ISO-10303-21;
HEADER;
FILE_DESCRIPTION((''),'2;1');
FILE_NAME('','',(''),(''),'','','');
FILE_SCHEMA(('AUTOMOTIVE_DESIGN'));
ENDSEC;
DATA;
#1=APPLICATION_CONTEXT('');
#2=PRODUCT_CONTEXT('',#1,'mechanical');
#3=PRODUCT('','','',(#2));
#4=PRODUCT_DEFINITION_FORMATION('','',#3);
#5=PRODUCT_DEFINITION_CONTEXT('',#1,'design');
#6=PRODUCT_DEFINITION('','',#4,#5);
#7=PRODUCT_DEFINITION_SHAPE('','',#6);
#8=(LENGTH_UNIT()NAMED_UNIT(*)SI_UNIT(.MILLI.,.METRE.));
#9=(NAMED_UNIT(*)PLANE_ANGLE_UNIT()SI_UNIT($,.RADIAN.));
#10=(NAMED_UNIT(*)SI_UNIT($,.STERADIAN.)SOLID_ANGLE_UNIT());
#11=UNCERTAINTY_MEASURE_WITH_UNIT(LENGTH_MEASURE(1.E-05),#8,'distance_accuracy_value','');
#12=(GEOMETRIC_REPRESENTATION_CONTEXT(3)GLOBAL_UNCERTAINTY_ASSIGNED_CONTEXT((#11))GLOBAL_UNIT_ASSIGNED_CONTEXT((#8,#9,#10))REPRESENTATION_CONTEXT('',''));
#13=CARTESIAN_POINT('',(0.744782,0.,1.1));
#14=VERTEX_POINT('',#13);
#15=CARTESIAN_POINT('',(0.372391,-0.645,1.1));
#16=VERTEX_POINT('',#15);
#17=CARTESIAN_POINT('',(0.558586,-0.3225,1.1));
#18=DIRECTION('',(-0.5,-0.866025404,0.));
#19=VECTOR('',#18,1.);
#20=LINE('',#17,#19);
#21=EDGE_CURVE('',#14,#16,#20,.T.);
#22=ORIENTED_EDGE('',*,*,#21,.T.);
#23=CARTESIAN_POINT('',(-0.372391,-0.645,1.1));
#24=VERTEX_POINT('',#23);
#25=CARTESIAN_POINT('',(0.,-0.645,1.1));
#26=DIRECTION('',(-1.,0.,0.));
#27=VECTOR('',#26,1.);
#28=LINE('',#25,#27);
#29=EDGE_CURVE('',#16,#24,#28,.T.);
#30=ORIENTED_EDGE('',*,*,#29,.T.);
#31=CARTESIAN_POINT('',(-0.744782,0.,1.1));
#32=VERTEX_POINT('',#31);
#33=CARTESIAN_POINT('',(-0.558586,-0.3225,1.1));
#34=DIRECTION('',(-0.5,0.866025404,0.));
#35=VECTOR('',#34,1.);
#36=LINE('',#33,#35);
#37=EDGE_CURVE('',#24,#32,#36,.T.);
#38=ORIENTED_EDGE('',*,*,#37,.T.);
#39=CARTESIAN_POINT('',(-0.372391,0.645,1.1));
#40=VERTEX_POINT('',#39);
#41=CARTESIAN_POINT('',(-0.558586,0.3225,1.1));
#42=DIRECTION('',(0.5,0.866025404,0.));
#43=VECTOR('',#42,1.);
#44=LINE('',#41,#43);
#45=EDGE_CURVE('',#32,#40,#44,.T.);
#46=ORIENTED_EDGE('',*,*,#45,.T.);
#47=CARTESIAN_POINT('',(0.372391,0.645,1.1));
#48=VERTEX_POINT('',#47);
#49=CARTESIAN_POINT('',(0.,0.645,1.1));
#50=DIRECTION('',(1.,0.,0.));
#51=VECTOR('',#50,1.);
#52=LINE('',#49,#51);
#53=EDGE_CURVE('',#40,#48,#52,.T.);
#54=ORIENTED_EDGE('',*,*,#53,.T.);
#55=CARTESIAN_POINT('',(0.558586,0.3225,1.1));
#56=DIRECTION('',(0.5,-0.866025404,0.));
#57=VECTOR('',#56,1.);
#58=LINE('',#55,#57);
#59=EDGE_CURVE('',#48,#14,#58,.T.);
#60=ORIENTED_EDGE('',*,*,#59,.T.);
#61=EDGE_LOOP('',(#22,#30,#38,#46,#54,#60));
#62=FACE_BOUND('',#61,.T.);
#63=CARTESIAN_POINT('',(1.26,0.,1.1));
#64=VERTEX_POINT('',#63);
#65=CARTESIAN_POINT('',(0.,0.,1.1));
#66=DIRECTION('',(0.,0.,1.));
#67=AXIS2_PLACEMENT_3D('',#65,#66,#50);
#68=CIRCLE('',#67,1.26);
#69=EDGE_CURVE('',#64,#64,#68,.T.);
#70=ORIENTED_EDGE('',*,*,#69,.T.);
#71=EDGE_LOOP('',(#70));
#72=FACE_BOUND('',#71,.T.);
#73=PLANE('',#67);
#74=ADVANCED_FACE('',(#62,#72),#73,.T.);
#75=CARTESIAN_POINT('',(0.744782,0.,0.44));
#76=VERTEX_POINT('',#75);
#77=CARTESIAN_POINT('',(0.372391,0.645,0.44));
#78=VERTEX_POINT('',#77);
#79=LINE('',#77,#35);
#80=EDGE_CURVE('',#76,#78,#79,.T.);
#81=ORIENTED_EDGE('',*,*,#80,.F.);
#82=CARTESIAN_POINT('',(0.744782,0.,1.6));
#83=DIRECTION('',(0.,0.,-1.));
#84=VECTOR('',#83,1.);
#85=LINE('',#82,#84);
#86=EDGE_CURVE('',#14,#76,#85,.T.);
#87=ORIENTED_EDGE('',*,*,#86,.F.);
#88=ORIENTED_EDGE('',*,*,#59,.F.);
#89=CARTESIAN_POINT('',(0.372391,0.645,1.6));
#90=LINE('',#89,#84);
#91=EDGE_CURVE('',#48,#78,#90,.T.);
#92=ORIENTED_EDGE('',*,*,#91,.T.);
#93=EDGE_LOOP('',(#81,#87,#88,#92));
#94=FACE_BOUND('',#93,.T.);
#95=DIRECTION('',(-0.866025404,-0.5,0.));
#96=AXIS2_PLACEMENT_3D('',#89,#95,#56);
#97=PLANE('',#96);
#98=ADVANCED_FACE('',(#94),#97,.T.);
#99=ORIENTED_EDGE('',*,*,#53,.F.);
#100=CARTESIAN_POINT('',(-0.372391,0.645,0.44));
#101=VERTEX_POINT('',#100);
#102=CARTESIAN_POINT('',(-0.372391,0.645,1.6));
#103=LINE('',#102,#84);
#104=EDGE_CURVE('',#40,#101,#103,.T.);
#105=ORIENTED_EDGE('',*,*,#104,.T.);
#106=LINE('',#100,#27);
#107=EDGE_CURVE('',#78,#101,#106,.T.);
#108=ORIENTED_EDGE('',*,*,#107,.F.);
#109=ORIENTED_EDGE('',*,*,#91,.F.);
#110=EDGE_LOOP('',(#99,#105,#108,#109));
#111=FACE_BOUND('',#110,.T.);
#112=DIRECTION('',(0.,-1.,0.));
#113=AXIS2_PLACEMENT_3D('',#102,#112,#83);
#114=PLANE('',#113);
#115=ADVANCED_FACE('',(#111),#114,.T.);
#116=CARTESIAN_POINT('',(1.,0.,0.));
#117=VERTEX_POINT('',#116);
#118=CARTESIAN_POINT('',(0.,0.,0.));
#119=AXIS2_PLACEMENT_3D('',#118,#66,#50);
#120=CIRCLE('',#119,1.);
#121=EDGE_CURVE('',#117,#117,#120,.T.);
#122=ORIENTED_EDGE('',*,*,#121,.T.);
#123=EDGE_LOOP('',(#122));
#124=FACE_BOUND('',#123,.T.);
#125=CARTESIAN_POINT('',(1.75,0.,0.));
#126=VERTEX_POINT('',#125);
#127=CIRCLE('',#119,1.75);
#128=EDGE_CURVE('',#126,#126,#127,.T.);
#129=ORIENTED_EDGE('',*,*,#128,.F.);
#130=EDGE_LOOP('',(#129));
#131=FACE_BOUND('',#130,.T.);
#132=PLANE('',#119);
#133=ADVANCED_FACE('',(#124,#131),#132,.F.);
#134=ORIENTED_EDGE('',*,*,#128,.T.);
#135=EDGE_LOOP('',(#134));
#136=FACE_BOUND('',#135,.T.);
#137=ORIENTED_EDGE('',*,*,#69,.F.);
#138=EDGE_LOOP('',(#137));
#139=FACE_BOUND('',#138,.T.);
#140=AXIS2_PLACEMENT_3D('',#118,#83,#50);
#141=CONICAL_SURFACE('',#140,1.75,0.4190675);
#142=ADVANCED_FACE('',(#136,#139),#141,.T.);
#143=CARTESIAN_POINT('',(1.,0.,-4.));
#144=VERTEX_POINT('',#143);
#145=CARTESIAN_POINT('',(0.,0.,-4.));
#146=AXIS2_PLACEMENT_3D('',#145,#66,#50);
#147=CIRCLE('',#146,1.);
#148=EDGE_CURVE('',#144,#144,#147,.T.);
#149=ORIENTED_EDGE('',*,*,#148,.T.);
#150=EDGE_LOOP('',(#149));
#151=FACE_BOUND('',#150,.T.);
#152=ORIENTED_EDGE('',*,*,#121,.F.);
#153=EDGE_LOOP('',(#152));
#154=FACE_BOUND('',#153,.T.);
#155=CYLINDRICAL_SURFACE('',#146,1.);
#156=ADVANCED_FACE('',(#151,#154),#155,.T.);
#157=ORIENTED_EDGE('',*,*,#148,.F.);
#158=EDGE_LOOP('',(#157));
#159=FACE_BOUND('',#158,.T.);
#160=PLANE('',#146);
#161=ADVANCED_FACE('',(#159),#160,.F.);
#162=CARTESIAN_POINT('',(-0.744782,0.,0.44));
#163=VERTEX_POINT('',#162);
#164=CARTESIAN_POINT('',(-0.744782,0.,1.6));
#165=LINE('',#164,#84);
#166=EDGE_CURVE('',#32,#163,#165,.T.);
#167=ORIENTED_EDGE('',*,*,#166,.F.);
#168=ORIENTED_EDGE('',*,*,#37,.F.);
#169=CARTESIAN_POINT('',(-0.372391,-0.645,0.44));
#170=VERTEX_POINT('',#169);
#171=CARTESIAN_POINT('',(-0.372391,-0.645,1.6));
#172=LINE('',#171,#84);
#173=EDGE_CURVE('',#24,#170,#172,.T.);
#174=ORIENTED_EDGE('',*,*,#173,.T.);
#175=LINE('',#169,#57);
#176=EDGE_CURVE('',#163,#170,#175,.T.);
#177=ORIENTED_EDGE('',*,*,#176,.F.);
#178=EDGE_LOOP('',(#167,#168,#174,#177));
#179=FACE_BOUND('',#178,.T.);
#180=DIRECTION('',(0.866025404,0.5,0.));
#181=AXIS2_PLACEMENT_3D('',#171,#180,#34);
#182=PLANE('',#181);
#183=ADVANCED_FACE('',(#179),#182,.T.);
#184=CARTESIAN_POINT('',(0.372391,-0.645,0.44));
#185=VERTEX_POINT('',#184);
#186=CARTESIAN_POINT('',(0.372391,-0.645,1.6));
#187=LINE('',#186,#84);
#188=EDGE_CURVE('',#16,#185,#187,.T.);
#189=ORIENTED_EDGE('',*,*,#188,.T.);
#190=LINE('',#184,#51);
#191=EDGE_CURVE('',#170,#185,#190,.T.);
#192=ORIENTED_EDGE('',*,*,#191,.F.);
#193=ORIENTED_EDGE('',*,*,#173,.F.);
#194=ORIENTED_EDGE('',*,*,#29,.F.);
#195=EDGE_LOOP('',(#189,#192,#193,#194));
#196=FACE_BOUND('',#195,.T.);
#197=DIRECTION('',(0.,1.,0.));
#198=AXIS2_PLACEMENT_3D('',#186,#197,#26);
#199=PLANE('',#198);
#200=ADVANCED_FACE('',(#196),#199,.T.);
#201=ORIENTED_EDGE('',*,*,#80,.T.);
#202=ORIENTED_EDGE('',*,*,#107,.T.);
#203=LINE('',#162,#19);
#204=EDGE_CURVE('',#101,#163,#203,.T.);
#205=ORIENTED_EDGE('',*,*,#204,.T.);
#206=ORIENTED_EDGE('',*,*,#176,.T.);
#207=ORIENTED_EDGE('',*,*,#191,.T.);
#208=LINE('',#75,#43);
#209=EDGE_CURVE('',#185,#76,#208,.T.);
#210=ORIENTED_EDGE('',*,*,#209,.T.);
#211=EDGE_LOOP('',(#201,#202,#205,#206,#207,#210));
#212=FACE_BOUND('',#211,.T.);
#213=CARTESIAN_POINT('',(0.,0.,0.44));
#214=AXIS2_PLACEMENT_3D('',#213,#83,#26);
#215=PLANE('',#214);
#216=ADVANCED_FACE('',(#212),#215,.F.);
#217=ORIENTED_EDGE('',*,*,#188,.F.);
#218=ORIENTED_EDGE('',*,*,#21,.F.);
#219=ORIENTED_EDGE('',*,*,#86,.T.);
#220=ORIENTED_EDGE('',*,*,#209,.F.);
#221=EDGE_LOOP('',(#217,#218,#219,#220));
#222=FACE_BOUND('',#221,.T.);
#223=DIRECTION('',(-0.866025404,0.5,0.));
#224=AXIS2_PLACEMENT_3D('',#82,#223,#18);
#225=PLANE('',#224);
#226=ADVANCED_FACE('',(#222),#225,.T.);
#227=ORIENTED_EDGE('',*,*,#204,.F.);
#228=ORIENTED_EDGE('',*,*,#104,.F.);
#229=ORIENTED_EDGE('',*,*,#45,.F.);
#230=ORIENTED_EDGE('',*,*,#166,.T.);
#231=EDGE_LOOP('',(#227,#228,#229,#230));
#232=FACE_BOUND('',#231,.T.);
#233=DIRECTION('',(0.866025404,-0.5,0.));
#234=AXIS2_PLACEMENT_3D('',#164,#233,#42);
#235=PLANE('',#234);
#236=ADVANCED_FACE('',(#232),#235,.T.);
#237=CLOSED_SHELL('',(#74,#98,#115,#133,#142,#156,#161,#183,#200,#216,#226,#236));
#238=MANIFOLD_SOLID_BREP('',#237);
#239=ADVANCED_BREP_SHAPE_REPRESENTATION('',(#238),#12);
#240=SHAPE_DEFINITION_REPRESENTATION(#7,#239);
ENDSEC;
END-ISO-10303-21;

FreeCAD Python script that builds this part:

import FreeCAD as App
import Part
import Sketcher

V = App.Vector
Q = App.Units.Quantity

doc = App.newDocument("Part")
body = doc.addObject("PartDesign::Body", "Body")

sketch1 = body.newObject("Sketcher::SketchObject", "Sketch")
sketch1.AttachmentSupport = (doc.getObject("XY_Plane"), [""])
sketch1.MapMode = "FlatFace"
sketch1.addGeometry(Part.Circle(V(0, 0, 0), V(0, 0, 1), 1), False)
sketch1.addConstraint(Sketcher.Constraint("Coincident", 0, 3, -1, 1))
sketch1.addConstraint(Sketcher.Constraint("Diameter", 0, 2.0))
pad1 = body.newObject("PartDesign::Pad", "Pad")
pad1.Profile = sketch1
pad1.Length = 4
pad1.Reversed = True

sketch2 = body.newObject("Sketcher::SketchObject", "Sketch001")
sketch2.AttachmentSupport = (doc.getObject("XY_Plane"), [""])
sketch2.MapMode = "FlatFace"
sketch2.addGeometry(Part.Circle(V(0, 0, 0), V(0, 0, 1), 1.8), False)
sketch2.addConstraint(Sketcher.Constraint("Coincident", 0, 3, -1, 1))
sketch2.addConstraint(Sketcher.Constraint("Diameter", 0, 3.5))
pad2 = body.newObject("PartDesign::Pad", "Pad001")
pad2.Profile = sketch2
pad2.Length = 1.1
pad2.TaperAngle = -24.010799

sketch3 = body.newObject("Sketcher::SketchObject", "Sketch002")
sketch3.AttachmentSupport = (doc.getObject("XY_Plane"), [""])
sketch3.MapMode = "FlatFace"
sketch3.AttachmentOffset = App.Placement(V(0, 0, 0.44), App.Rotation())
sketch3.addGeometry(Part.LineSegment(V(0.4, -0.6, 0), V(0.7, 0, 0)), False)
sketch3.addGeometry(Part.LineSegment(V(0.7, 0, 0), V(0.4, 0.6, 0)), False)
sketch3.addGeometry(Part.LineSegment(V(0.4, 0.6, 0), V(-0.4, 0.6, 0)), False)
sketch3.addGeometry(Part.LineSegment(V(-0.4, 0.6, 0), V(-0.7, 0, 0)), False)
sketch3.addGeometry(Part.LineSegment(V(-0.7, 0, 0), V(-0.4, -0.6, 0)), False)
sketch3.addGeometry(Part.LineSegment(V(-0.4, -0.6, 0), V(0.4, -0.6, 0)), False)
sketch3.addConstraint(Sketcher.Constraint("Coincident", 0, 2, 1, 1))
sketch3.addConstraint(Sketcher.Constraint("Coincident", 1, 2, 2, 1))
sketch3.addConstraint(Sketcher.Constraint("Coincident", 2, 2, 3, 1))
sketch3.addConstraint(Sketcher.Constraint("Coincident", 3, 2, 4, 1))
sketch3.addConstraint(Sketcher.Constraint("Coincident", 4, 2, 5, 1))
sketch3.addConstraint(Sketcher.Constraint("Coincident", 5, 2, 0, 1))
sketch3.addConstraint(Sketcher.Constraint("Horizontal", 2))
sketch3.addConstraint(Sketcher.Constraint("Horizontal", 5))
sketch3.addConstraint(Sketcher.Constraint("Symmetric", 0, 2, 3, 2, -1, 1))
sketch3.addConstraint(Sketcher.Constraint("Symmetric", 1, 2, 4, 2, -1, 1))
sketch3.addConstraint(Sketcher.Constraint("PointOnObject", 0, 2, -1))
sketch3.addConstraint(Sketcher.Constraint("Parallel", 0, 3))
sketch3.addConstraint(Sketcher.Constraint("Vertical", 2, 2, 4, 2))
sketch3.addConstraint(Sketcher.Constraint("Angle", 0, Q("60 deg")))
sketch3.addConstraint(Sketcher.Constraint("DistanceY", 4, 2, 2, 2, 1.29))
sketch3.addConstraint(Sketcher.Constraint("DistanceX", 2, 2, 2, 1, 0.744782))
pocket1 = body.newObject("PartDesign::Pocket", "Pocket")
pocket1.Profile = sketch3
pocket1.Length = 1.16
pocket1.Reversed = True

doc.recompute()
